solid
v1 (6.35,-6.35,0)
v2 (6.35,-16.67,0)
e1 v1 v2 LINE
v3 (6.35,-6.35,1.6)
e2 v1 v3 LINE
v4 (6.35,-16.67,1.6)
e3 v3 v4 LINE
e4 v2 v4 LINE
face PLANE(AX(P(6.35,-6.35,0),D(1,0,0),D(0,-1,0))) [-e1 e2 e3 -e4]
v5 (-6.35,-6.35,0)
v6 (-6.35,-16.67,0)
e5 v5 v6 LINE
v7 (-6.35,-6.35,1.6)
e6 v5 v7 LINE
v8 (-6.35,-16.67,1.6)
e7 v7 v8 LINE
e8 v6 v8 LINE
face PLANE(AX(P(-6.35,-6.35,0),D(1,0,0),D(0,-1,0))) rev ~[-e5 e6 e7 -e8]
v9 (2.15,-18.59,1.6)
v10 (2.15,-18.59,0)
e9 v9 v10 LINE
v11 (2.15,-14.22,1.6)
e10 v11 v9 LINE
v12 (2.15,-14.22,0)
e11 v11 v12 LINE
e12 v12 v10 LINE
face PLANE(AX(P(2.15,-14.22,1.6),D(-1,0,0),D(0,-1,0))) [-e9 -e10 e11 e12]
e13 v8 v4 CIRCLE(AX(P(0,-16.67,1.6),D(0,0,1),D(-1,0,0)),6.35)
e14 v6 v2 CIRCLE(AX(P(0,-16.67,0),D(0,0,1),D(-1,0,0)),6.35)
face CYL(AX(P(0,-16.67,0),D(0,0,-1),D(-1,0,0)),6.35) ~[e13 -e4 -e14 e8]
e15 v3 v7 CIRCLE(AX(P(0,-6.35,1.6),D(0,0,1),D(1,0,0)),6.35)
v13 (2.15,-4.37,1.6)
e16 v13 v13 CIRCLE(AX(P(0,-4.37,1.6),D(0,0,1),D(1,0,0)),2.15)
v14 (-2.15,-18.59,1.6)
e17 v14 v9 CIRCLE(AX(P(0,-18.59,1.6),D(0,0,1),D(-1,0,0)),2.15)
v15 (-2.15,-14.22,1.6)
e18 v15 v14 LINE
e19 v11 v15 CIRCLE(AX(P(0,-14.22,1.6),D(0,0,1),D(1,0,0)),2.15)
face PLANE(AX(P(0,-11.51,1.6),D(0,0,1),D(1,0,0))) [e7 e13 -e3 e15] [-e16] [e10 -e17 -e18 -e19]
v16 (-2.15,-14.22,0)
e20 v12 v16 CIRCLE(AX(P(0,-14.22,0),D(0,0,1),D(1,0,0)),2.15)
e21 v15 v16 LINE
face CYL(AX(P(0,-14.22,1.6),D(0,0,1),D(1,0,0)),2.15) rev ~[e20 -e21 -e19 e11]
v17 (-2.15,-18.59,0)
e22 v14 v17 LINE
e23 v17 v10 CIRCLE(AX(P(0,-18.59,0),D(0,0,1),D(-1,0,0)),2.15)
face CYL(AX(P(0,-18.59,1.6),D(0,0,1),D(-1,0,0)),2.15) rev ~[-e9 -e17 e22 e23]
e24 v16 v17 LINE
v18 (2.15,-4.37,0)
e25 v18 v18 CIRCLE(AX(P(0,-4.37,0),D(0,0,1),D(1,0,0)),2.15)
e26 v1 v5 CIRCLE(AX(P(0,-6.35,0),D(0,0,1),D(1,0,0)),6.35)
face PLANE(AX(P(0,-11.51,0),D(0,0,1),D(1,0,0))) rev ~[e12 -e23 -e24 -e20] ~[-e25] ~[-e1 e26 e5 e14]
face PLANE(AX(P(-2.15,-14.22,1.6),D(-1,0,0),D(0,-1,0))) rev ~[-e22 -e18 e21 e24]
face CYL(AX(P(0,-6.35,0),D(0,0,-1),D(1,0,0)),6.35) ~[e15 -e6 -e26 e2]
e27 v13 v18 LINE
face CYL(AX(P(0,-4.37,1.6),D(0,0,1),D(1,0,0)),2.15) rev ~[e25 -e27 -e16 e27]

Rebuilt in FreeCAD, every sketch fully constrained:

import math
import FreeCAD as App
import Part
import Sketcher
Q = App.Units.Quantity

doc = App.newDocument("Part")
body = doc.addObject("PartDesign::Body", "Body")

sketch1 = body.newObject("Sketcher::SketchObject", "Sketch")
sketch1.AttachmentSupport = (doc.getObject("XY_Plane"), [""])
sketch1.MapMode = "FlatFace"
sketch1.addGeometry([
    Part.ArcOfCircle(Part.Circle(App.Vector(0, -6.35, 0), App.Vector(0, 0, 1), 6.35), math.radians(0), math.radians(180)),
    Part.LineSegment(App.Vector(-6.35, -6.35, 0), App.Vector(-6.35, -16.67, 0)),
    Part.ArcOfCircle(Part.Circle(App.Vector(0, -16.67, 0), App.Vector(0, 0, 1), 6.35), math.radians(180), math.radians(360)),
    Part.LineSegment(App.Vector(6.35, -16.67, 0), App.Vector(6.35, -6.35, 0)),
], False)
sketch1.addConstraint([
    Sketcher.Constraint("Tangent", 0, 2, 1, 1),
    Sketcher.Constraint("Tangent", 1, 2, 2, 1),
    Sketcher.Constraint("Tangent", 2, 2, 3, 1),
    Sketcher.Constraint("Tangent", 3, 2, 0, 1),
    Sketcher.Constraint("Vertical", 1),
    Sketcher.Constraint("Vertical", 3),
    Sketcher.Constraint("PointOnObject", 0, 3, -2),
    Sketcher.Constraint("Radius", 0, Q("6.35 mm")),
    Sketcher.Constraint("DistanceY", 1, 2, 1, 1, Q("10.32 mm")),
    Sketcher.Constraint("DistanceY", 0, 3, -1, 1, Q("6.35 mm")),
])
pad1 = body.newObject("PartDesign::Pad", "Pad")
pad1.Profile = sketch1
pad1.Length = 1.6

sketch2 = body.newObject("Sketcher::SketchObject", "Sketch001")
sketch2.AttachmentSupport = (doc.getObject("XY_Plane"), [""])
sketch2.MapMode = "FlatFace"
sketch2.AttachmentOffset = App.Placement(App.Vector(0, 0, 1.6), App.Rotation())
sketch2.addGeometry(Part.Circle(App.Vector(0, -4.37, 0), App.Vector(0, 0, 1), 2.15), False)
sketch2.addConstraint([
    Sketcher.Constraint("PointOnObject", 0, 3, -2),
    Sketcher.Constraint("Diameter", 0, Q("4.3 mm")),
    Sketcher.Constraint("DistanceY", 0, 3, -1, 1, Q("4.37 mm")),
])
pocket1 = body.newObject("PartDesign::Pocket", "Pocket")
pocket1.Profile = sketch2
pocket1.Type = "ThroughAll"

sketch3 = body.newObject("Sketcher::SketchObject", "Sketch002")
sketch3.AttachmentSupport = (doc.getObject("XY_Plane"), [""])
sketch3.MapMode = "FlatFace"
sketch3.AttachmentOffset = App.Placement(App.Vector(0, 0, 1.6), App.Rotation())
sketch3.addGeometry([
    Part.ArcOfCircle(Part.Circle(App.Vector(0, -14.22, 0), App.Vector(0, 0, 1), 2.15), math.radians(0), math.radians(180)),
    Part.LineSegment(App.Vector(-2.15, -14.22, 0), App.Vector(-2.15, -18.59, 0)),
    Part.ArcOfCircle(Part.Circle(App.Vector(0, -18.59, 0), App.Vector(0, 0, 1), 2.15), math.radians(180), math.radians(360)),
    Part.LineSegment(App.Vector(2.15, -18.59, 0), App.Vector(2.15, -14.22, 0)),
], False)
sketch3.addConstraint([
    Sketcher.Constraint("Tangent", 0, 2, 1, 1),
    Sketcher.Constraint("Tangent", 1, 2, 2, 1),
    Sketcher.Constraint("Tangent", 2, 2, 3, 1),
    Sketcher.Constraint("Tangent", 3, 2, 0, 1),
    Sketcher.Constraint("Vertical", 1),
    Sketcher.Constraint("Vertical", 3),
    Sketcher.Constraint("PointOnObject", 0, 3, -2),
    Sketcher.Constraint("Radius", 0, Q("2.15 mm")),
    Sketcher.Constraint("DistanceY", 1, 2, 1, 1, Q("4.37 mm")),
    Sketcher.Constraint("DistanceY", 0, 3, -1, 1, Q("14.22 mm")),
])
pocket2 = body.newObject("PartDesign::Pocket", "Pocket001")
pocket2.Profile = sketch3
pocket2.Type = "ThroughAll"

doc.recompute()
